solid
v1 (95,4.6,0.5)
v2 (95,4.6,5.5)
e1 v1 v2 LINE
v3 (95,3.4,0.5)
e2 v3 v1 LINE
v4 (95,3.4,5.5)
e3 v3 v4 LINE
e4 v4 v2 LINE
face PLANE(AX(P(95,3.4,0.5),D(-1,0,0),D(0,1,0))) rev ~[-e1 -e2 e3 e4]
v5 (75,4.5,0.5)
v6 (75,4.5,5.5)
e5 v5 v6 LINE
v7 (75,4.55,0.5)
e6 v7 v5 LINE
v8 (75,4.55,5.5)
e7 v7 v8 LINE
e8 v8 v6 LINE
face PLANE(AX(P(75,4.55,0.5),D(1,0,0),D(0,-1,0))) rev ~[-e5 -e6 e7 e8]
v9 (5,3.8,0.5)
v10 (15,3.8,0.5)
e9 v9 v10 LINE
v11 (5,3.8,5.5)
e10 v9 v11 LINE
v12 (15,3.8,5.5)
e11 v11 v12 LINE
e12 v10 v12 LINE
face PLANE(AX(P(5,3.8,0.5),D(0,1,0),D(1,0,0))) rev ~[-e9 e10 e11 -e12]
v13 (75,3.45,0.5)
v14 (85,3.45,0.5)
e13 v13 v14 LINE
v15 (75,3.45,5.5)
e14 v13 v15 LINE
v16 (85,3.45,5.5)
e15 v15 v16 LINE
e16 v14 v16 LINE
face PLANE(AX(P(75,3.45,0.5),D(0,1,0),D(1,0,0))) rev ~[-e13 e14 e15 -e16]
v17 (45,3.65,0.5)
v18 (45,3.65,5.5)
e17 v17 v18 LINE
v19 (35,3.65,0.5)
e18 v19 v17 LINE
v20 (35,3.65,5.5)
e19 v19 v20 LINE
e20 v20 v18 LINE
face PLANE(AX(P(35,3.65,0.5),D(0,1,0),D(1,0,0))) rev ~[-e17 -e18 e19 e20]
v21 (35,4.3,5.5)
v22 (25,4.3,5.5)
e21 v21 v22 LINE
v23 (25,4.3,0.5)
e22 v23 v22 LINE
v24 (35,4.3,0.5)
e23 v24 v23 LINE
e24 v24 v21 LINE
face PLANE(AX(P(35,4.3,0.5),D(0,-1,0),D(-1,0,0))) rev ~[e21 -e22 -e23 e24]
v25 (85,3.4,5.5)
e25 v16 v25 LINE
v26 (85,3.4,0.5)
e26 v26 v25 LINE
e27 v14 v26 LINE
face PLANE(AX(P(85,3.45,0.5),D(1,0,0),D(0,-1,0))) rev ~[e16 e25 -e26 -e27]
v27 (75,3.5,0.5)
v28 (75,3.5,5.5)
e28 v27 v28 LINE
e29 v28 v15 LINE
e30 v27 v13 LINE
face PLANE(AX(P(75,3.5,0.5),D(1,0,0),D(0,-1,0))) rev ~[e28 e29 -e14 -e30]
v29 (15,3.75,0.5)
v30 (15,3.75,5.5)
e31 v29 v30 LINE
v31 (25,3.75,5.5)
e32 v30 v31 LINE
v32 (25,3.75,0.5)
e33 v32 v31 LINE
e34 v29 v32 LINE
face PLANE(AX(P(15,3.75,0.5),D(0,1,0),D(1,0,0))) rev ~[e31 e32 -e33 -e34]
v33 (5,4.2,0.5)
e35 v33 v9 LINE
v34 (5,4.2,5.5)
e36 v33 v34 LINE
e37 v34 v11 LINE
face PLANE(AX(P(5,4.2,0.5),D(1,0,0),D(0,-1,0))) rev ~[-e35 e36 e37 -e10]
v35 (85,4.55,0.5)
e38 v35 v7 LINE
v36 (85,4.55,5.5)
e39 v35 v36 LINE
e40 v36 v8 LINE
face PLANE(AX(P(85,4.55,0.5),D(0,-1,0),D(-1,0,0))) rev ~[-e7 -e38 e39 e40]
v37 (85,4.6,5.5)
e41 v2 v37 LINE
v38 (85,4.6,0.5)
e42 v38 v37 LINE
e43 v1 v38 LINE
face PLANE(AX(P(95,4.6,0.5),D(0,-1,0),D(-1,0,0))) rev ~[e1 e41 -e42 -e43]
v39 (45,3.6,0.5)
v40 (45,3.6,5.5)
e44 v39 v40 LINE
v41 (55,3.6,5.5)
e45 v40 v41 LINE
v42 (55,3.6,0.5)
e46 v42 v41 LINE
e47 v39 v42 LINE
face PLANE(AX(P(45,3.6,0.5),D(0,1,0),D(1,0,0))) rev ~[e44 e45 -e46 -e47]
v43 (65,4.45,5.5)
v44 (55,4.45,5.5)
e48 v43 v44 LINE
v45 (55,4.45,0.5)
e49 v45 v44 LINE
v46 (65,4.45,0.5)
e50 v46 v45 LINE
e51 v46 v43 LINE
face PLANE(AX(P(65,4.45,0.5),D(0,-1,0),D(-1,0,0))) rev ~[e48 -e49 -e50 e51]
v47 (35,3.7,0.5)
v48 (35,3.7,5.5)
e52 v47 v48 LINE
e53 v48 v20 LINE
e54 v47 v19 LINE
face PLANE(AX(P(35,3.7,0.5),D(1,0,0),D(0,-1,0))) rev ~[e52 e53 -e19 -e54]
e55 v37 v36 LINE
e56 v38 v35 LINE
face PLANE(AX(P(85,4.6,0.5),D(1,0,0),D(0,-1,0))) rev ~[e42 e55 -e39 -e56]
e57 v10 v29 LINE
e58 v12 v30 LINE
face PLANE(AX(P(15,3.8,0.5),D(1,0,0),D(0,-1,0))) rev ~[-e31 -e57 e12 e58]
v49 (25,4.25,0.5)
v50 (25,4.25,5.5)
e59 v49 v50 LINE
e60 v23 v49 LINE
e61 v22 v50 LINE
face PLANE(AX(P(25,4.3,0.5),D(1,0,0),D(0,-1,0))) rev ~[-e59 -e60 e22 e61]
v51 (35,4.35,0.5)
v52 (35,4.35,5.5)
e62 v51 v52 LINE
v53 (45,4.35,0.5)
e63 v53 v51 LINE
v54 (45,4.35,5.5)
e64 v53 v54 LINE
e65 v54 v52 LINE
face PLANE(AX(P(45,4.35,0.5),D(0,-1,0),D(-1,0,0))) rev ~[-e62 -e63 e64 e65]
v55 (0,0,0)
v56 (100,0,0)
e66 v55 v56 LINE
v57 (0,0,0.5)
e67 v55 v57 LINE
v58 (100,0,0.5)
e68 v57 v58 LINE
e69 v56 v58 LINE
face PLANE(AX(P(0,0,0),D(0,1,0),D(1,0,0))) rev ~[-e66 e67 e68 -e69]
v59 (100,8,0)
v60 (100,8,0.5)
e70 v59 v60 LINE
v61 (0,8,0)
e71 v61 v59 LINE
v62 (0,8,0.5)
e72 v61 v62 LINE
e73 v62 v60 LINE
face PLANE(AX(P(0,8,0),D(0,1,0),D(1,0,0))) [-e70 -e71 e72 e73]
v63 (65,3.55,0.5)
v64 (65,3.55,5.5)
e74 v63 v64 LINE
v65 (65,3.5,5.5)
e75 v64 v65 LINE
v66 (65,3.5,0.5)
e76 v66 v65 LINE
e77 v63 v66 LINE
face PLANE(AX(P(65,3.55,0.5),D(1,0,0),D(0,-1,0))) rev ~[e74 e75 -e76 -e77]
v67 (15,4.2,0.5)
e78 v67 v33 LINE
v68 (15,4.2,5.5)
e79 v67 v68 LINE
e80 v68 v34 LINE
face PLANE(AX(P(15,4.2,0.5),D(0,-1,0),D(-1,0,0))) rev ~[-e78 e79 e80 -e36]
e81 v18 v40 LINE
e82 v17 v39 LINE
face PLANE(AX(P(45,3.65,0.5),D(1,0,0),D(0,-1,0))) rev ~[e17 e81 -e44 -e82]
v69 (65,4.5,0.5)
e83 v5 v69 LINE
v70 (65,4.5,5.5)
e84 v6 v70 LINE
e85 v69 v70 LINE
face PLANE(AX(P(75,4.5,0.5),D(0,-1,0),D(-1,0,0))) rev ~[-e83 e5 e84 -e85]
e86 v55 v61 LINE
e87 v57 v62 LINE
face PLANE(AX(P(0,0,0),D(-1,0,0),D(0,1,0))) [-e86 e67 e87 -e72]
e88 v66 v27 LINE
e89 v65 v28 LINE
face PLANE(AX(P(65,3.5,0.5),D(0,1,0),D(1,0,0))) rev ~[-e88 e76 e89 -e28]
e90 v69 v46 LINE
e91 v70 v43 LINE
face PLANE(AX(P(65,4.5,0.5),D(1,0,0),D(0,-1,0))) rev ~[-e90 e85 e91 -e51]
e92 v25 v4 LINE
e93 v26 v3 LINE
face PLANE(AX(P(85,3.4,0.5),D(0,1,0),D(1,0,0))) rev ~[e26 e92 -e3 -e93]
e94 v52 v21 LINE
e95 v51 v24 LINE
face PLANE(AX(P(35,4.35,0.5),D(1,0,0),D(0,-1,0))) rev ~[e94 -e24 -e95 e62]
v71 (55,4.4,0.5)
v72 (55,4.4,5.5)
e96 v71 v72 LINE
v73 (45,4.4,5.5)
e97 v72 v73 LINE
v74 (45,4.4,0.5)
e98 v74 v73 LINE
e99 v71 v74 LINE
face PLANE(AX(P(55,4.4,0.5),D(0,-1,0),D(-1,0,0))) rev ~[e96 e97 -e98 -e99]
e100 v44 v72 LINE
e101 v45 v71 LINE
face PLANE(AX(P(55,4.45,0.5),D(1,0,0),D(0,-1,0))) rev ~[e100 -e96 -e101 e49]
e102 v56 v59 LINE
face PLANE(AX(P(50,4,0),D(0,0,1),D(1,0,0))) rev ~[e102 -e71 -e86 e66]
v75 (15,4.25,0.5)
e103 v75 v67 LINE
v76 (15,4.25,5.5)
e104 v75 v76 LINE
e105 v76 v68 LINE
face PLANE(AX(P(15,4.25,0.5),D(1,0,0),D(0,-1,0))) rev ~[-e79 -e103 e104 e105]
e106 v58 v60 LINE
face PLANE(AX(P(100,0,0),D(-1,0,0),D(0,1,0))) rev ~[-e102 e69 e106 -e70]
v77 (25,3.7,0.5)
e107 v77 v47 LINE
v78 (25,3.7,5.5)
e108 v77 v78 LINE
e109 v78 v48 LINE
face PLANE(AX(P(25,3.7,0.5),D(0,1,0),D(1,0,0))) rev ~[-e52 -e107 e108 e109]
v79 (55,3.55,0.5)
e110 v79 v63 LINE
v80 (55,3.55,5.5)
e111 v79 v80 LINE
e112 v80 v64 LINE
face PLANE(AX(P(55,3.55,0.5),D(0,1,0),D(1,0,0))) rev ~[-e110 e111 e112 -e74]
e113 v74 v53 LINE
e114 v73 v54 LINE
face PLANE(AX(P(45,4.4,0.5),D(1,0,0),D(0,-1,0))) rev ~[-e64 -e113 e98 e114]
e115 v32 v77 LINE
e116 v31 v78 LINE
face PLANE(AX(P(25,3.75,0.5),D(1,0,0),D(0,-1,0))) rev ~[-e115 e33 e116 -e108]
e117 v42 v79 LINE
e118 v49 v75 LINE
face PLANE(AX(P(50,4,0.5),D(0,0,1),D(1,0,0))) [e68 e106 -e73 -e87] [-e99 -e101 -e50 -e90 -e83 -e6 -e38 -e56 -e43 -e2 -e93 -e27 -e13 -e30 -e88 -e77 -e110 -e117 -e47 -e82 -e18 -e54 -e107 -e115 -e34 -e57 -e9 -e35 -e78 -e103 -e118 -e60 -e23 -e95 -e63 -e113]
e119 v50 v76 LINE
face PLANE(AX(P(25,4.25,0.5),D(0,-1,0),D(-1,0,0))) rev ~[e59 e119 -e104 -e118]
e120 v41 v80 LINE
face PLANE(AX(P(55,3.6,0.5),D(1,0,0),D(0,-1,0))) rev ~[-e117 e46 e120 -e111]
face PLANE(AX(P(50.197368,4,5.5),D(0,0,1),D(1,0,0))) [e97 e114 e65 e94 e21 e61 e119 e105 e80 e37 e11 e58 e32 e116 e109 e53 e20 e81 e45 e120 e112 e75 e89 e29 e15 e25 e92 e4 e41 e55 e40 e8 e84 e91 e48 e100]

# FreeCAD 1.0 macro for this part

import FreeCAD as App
import Part
import Sketcher

V = App.Vector
Q = App.Units.Quantity


def add_polygon(sketch, points):
    """Adds a closed chain of lines whose ends are joined by coincident constraints."""
    first, n = sketch.GeometryCount, len(points)
    for a, b in zip(points, points[1:] + points[:1]):
        sketch.addGeometry(Part.LineSegment(App.Vector(*a, 0), App.Vector(*b, 0)), False)
    for i in range(n):
        sketch.addConstraint(Sketcher.Constraint("Coincident", first + i, 2, first + (i + 1) % n, 1))

doc = App.newDocument("Part")
params = doc.addObject("Spreadsheet::Sheet", "Params")
for row, (alias, value) in enumerate([
    ("sketch1_width", "100 mm"),
    ("sketch1_height", "8 mm"),
    ("pad1_length", "0.5 mm"),
    ("sketch2_width", "10 mm"),
    ("sketch2_height", "0.4 mm"),
    ("sketch2_height2", "1.2 mm"),
    ("pad2_length", "5 mm"),
], start=1):
    params.set(f"A{row}", alias)
    params.set(f"B{row}", "=" + value)
    params.setAlias(f"B{row}", alias)

body = doc.addObject("PartDesign::Body", "Body")

sketch1 = doc.addObject("Sketcher::SketchObject", "Sketch")
body.addObject(sketch1)
sketch1.AttachmentSupport = (doc.XY_Plane, [""])
sketch1.MapMode = "FlatFace"
add_polygon(sketch1, [(0, 8), (0, 0), (100, 0), (100, 8)])
sketch1.addConstraint(Sketcher.Constraint("Vertical", 0))
sketch1.addConstraint(Sketcher.Constraint("Horizontal", 1))
sketch1.addConstraint(Sketcher.Constraint("Vertical", 2))
sketch1.addConstraint(Sketcher.Constraint("Horizontal", 3))
sketch1.addConstraint(Sketcher.Constraint("Coincident", 0, 2, -1, 1))
sketch1.addConstraint(Sketcher.Constraint("DistanceX", 1, 1, 1, 2, Q("100 mm")))
sketch1.addConstraint(Sketcher.Constraint("DistanceY", 0, 2, 0, 1, Q("8 mm")))
sketch1.setExpression("Constraints[9]", "Params.sketch1_width")
sketch1.setExpression("Constraints[10]", "Params.sketch1_height")
pad1 = doc.addObject("PartDesign::Pad", "Pad")
body.addObject(pad1)
pad1.Profile = sketch1
pad1.setExpression("Length", "Params.pad1_length")

sketch2 = doc.addObject("Sketcher::SketchObject", "Sketch001")
body.addObject(sketch2)
sketch2.AttachmentSupport = (doc.XY_Plane, [""])
sketch2.MapMode = "FlatFace"
sketch2.AttachmentOffset = App.Placement(V(0, 0, 0.5), App.Rotation())
add_polygon(sketch2, [(5, 4.2), (5, 3.8), (15, 3.8), (15, 3.75), (25, 3.75), (25, 3.7), (35, 3.7), (35, 3.65), (45, 3.65), (45, 3.6), (55, 3.6), (55, 3.55), (65, 3.55), (65, 3.5), (75, 3.5), (75, 3.45), (85, 3.45), (85, 3.4), (95, 3.4), (95, 4.6), (85, 4.6), (85, 4.55), (75, 4.55), (75, 4.5), (65, 4.5), (65, 4.45), (55, 4.45), (55, 4.4), (45, 4.4), (45, 4.35), (35, 4.35), (35, 4.3), (25, 4.3), (25, 4.25), (15, 4.25), (15, 4.2)])
sketch2.addConstraint(Sketcher.Constraint("Vertical", 0))
sketch2.addConstraint(Sketcher.Constraint("Horizontal", 1))
sketch2.addConstraint(Sketcher.Constraint("Vertical", 2))
sketch2.addConstraint(Sketcher.Constraint("Horizontal", 3))
sketch2.addConstraint(Sketcher.Constraint("Vertical", 4))
sketch2.addConstraint(Sketcher.Constraint("Horizontal", 5))
sketch2.addConstraint(Sketcher.Constraint("Vertical", 6))
sketch2.addConstraint(Sketcher.Constraint("Horizontal", 7))
sketch2.addConstraint(Sketcher.Constraint("Vertical", 8))
sketch2.addConstraint(Sketcher.Constraint("Horizontal", 9))
sketch2.addConstraint(Sketcher.Constraint("Vertical", 10))
sketch2.addConstraint(Sketcher.Constraint("Horizontal", 11))
sketch2.addConstraint(Sketcher.Constraint("Vertical", 12))
sketch2.addConstraint(Sketcher.Constraint("Horizontal", 13))
sketch2.addConstraint(Sketcher.Constraint("Vertical", 14))
sketch2.addConstraint(Sketcher.Constraint("Horizontal", 15))
sketch2.addConstraint(Sketcher.Constraint("Vertical", 16))
sketch2.addConstraint(Sketcher.Constraint("Horizontal", 17))
sketch2.addConstraint(Sketcher.Constraint("Vertical", 18))
sketch2.addConstraint(Sketcher.Constraint("Horizontal", 19))
sketch2.addConstraint(Sketcher.Constraint("Vertical", 20))
sketch2.addConstraint(Sketcher.Constraint("Horizontal", 21))
sketch2.addConstraint(Sketcher.Constraint("Vertical", 22))
sketch2.addConstraint(Sketcher.Constraint("Horizontal", 23))
sketch2.addConstraint(Sketcher.Constraint("Vertical", 24))
sketch2.addConstraint(Sketcher.Constraint("Horizontal", 25))
sketch2.addConstraint(Sketcher.Constraint("Vertical", 26))
sketch2.addConstraint(Sketcher.Constraint("Horizontal", 27))
sketch2.addConstraint(Sketcher.Constraint("Vertical", 28))
sketch2.addConstraint(Sketcher.Constraint("Horizontal", 29))
sketch2.addConstraint(Sketcher.Constraint("Vertical", 30))
sketch2.addConstraint(Sketcher.Constraint("Horizontal", 31))
sketch2.addConstraint(Sketcher.Constraint("Vertical", 32))
sketch2.addConstraint(Sketcher.Constraint("Horizontal", 33))
sketch2.addConstraint(Sketcher.Constraint("Vertical", 34))
sketch2.addConstraint(Sketcher.Constraint("Horizontal", 35))
sketch2.addConstraint(Sketcher.Constraint("Vertical", 16, 2, 19, 2))
sketch2.addConstraint(Sketcher.Constraint("Vertical", 14, 2, 21, 2))
sketch2.addConstraint(Sketcher.Constraint("Vertical", 12, 2, 23, 2))
sketch2.addConstraint(Sketcher.Constraint("Vertical", 10, 2, 25, 2))
sketch2.addConstraint(Sketcher.Constraint("Vertical", 8, 2, 27, 2))
sketch2.addConstraint(Sketcher.Constraint("Vertical", 6, 2, 29, 2))
sketch2.addConstraint(Sketcher.Constraint("Vertical", 4, 2, 31, 2))
sketch2.addConstraint(Sketcher.Constraint("Vertical", 2, 2, 33, 2))
sketch2.addConstraint(Sketcher.Constraint("Equal", 1, 3))
sketch2.addConstraint(Sketcher.Constraint("Equal", 3, 5))
sketch2.addConstraint(Sketcher.Constraint("Equal", 5, 7))
sketch2.addConstraint(Sketcher.Constraint("Equal", 7, 9))
sketch2.addConstraint(Sketcher.Constraint("Equal", 9, 11))
sketch2.addConstraint(Sketcher.Constraint("Equal", 11, 13))
sketch2.addConstraint(Sketcher.Constraint("Equal", 13, 15))
sketch2.addConstraint(Sketcher.Constraint("Equal", 15, 17))
sketch2.addConstraint(Sketcher.Constraint("Equal", 2, 4))
sketch2.addConstraint(Sketcher.Constraint("Equal", 4, 6))
sketch2.addConstraint(Sketcher.Constraint("Equal", 6, 8))
sketch2.addConstraint(Sketcher.Constraint("Equal", 8, 10))
sketch2.addConstraint(Sketcher.Constraint("Equal", 10, 12))
sketch2.addConstraint(Sketcher.Constraint("Equal", 12, 14))
sketch2.addConstraint(Sketcher.Constraint("Equal", 14, 16))
sketch2.addConstraint(Sketcher.Constraint("Equal", 16, 20))
sketch2.addConstraint(Sketcher.Constraint("Equal", 20, 22))
sketch2.addConstraint(Sketcher.Constraint("Equal", 22, 24))
sketch2.addConstraint(Sketcher.Constraint("Equal", 24, 26))
sketch2.addConstraint(Sketcher.Constraint("Equal", 26, 28))
sketch2.addConstraint(Sketcher.Constraint("Equal", 28, 30))
sketch2.addConstraint(Sketcher.Constraint("Equal", 30, 32))
sketch2.addConstraint(Sketcher.Constraint("Equal", 32, 34))
sketch2.addConstraint(Sketcher.Constraint("DistanceX", 1, 1, 1, 2, Q("10 mm")))
sketch2.addConstraint(Sketcher.Constraint("DistanceY", 0, 2, 0, 1, Q("0.4 mm")))
sketch2.addConstraint(Sketcher.Constraint("DistanceY", 18, 1, 18, 2, Q("1.2 mm")))
sketch2.addConstraint(Sketcher.Constraint("DistanceX", -1, 1, 0, 2, Q("5 mm")))
sketch2.addConstraint(Sketcher.Constraint("DistanceY", -1, 1, 0, 2, Q("3.8 mm")))
sketch2.setExpression("Constraints[103]", "Params.sketch2_width")
sketch2.setExpression("Constraints[104]", "Params.sketch2_height")
sketch2.setExpression("Constraints[105]", "Params.sketch2_height2")
pad2 = doc.addObject("PartDesign::Pad", "Pad001")
body.addObject(pad2)
pad2.Profile = sketch2
pad2.setExpression("Length", "Params.pad2_length")

doc.recompute()
